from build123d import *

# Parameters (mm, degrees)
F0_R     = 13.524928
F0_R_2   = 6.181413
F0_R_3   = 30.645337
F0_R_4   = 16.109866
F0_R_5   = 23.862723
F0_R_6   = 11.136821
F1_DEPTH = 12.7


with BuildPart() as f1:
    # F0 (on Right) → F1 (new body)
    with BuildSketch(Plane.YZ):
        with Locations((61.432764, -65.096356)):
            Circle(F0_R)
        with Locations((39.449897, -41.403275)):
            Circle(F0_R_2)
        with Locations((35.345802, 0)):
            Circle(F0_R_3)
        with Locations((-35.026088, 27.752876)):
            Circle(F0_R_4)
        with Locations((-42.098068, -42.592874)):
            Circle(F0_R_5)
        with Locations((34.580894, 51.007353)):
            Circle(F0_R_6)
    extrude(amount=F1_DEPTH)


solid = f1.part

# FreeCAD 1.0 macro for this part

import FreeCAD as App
import Part
import Sketcher
Q = App.Units.Quantity

doc = App.newDocument("Part")
body = doc.addObject("PartDesign::Body", "Body")
body.AllowCompound = True

sketch1 = doc.addObject("Sketcher::SketchObject", "Sketch")
body.addObject(sketch1)
sketch1.AttachmentSupport = (doc.YZ_Plane, [""])
sketch1.MapMode = "FlatFace"
sketch1.addGeometry([
    Part.Circle(App.Vector(61, -65, 0), App.Vector(0, 0, 1), 14),
    Part.Circle(App.Vector(39, -41, 0), App.Vector(0, 0, 1), 6),
    Part.Circle(App.Vector(35, 0, 0), App.Vector(0, 0, 1), 31),
    Part.Circle(App.Vector(-35, 28, 0), App.Vector(0, 0, 1), 16),
    Part.Circle(App.Vector(-42, -43, 0), App.Vector(0, 0, 1), 24),
    Part.Circle(App.Vector(35, 51, 0), App.Vector(0, 0, 1), 11),
], False)
sketch1.addConstraint([
    Sketcher.Constraint("PointOnObject", 2, 3, -1),
    Sketcher.Constraint("Diameter", 5, 22.273642),
    Sketcher.Constraint("Diameter", 0, 27.049856),
    Sketcher.Constraint("Diameter", 1, 12.362826),
    Sketcher.Constraint("Diameter", 2, 61.290674),
    Sketcher.Constraint("Diameter", 3, 32.219732),
    Sketcher.Constraint("Diameter", 4, 47.725446),
    Sketcher.Constraint("DistanceY", 4, 3, 1, 3, 1.189599),
    Sketcher.Constraint("DistanceY", 0, 3, 1, 3, 23.693081),
    Sketcher.Constraint("DistanceX", 2, 3, 0, 3, 26.086962),
    Sketcher.Constraint("DistanceX", 3, 3, 2, 3, 70.37189),
    Sketcher.Constraint("DistanceY", 1, 3, 3, 3, 69.156151),
    Sketcher.Constraint("DistanceX", 4, 3, 3, 3, 7.07198),
    Sketcher.Constraint("DistanceY", 1, 3, 5, 3, 92.410628),
    Sketcher.Constraint("DistanceX", 5, 3, 0, 3, 26.85187),
    Sketcher.Constraint("DistanceX", -1, 1, 0, 3, 61.432764),
    Sketcher.Constraint("DistanceY", 0, 3, -1, 1, 65.096356),
    Sketcher.Constraint("DistanceX", -1, 1, 1, 3, 39.449897),
])
pad1 = doc.addObject("PartDesign::Pad", "Pad")
body.addObject(pad1)
pad1.Profile = sketch1
pad1.Length = Q("0.5 in")

doc.recompute()
